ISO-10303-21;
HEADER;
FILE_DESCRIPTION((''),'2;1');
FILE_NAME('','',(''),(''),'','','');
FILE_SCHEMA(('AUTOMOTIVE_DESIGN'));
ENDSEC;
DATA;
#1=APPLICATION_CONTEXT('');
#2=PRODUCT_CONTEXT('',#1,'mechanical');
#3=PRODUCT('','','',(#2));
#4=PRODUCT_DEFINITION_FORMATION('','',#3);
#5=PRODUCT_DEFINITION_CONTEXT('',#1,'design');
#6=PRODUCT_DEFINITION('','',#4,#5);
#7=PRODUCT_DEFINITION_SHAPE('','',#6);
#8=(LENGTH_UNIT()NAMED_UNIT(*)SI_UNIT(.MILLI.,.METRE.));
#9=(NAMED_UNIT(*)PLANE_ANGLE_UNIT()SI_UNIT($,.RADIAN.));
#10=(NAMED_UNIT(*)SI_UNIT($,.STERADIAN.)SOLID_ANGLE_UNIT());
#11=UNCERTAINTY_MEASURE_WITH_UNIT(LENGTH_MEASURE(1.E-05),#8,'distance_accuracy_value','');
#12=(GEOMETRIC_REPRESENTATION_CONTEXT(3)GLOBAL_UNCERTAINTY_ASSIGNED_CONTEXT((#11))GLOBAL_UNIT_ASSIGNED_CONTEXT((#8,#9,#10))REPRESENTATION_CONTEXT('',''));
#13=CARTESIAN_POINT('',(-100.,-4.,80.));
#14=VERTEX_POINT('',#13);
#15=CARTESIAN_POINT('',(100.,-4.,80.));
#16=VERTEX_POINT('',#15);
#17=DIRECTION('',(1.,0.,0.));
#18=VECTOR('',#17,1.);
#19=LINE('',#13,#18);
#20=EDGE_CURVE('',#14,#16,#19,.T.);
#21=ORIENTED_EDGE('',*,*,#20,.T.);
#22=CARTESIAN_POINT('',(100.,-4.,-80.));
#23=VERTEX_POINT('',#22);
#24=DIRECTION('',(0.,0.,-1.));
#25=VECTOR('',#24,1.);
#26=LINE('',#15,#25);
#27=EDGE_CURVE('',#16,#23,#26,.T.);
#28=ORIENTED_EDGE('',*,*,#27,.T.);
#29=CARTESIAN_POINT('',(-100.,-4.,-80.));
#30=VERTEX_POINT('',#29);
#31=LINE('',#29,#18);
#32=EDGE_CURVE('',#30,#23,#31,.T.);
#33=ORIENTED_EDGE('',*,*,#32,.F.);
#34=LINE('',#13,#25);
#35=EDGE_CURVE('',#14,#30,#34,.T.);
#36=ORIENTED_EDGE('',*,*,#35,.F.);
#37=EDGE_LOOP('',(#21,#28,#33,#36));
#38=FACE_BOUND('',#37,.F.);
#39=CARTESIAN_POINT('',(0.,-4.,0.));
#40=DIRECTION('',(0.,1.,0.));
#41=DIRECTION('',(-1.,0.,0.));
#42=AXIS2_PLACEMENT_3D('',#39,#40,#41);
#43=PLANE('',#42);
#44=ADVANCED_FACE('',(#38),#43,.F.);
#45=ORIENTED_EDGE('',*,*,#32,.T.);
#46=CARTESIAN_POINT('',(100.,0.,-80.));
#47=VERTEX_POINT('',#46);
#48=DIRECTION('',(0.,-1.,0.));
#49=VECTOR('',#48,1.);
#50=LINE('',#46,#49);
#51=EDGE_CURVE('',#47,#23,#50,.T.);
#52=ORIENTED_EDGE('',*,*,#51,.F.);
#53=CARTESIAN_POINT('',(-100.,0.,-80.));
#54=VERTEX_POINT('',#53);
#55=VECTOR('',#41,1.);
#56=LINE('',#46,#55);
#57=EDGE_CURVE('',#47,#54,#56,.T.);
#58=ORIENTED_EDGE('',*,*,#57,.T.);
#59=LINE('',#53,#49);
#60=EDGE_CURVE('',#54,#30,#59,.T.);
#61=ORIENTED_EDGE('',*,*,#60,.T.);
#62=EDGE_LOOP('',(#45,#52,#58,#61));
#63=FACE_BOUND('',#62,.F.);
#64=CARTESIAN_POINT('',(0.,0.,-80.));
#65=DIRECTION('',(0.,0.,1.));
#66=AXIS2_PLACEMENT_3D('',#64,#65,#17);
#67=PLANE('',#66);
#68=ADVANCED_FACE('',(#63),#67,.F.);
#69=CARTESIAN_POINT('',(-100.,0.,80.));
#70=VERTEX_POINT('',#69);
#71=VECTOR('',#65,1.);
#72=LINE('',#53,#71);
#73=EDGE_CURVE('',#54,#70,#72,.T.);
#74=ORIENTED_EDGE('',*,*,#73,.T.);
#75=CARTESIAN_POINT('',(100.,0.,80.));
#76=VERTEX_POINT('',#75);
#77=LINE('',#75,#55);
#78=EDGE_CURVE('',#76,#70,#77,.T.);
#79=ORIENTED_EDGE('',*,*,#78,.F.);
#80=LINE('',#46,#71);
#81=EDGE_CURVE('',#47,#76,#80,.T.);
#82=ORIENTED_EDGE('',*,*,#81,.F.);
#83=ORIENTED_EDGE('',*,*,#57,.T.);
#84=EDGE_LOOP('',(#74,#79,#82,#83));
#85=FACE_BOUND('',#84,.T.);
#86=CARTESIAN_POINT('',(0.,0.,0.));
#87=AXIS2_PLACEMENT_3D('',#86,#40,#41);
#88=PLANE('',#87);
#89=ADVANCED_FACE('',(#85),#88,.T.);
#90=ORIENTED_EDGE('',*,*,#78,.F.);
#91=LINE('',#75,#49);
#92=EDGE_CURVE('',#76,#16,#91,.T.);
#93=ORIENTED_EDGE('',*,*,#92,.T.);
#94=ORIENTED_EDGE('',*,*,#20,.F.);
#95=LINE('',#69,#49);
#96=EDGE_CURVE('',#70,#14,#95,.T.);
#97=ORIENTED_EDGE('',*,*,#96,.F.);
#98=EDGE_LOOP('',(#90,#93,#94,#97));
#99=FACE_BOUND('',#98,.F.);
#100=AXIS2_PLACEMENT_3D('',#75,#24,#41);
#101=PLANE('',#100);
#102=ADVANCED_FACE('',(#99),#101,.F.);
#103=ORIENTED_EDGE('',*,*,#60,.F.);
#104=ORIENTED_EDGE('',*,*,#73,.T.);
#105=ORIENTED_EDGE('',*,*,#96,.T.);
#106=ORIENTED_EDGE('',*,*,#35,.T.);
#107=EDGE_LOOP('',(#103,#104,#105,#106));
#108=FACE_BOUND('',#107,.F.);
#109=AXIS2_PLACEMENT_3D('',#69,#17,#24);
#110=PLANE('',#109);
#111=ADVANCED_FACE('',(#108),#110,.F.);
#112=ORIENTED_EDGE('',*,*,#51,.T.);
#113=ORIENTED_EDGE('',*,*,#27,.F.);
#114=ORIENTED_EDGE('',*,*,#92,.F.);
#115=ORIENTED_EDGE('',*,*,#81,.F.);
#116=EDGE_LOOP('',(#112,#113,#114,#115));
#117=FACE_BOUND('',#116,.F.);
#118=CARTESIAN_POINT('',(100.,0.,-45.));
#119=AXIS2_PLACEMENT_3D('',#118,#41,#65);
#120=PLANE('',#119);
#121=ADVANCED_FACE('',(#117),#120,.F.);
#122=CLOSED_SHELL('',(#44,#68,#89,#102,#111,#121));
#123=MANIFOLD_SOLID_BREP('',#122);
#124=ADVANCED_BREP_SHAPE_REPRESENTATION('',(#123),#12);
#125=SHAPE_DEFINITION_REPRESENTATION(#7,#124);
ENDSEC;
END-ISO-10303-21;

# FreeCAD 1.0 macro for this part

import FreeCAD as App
import Part
import Sketcher

V = App.Vector
Q = App.Units.Quantity


def add_polygon(sketch, points):
    """Adds a closed chain of lines whose ends are joined by coincident constraints."""
    first, n = sketch.GeometryCount, len(points)
    for a, b in zip(points, points[1:] + points[:1]):
        sketch.addGeometry(Part.LineSegment(App.Vector(*a, 0), App.Vector(*b, 0)), False)
    for i in range(n):
        sketch.addConstraint(Sketcher.Constraint("Coincident", first + i, 2, first + (i + 1) % n, 1))

doc = App.newDocument("Part")
body = doc.addObject("PartDesign::Body", "Body")

# Sketch on XZ plane
sketch1 = body.newObject("Sketcher::SketchObject", "Sketch")
sketch1.AttachmentSupport = (doc.getObject("XZ_Plane"), [""])
sketch1.MapMode = "FlatFace"
add_polygon(sketch1, [(100, 80), (100, -80), (-100, -80), (-100, 80)])  # lines 0-3
sketch1.addConstraint(Sketcher.Constraint("Vertical", 0))
sketch1.addConstraint(Sketcher.Constraint("Horizontal", 1))
sketch1.addConstraint(Sketcher.Constraint("Vertical", 2))
sketch1.addConstraint(Sketcher.Constraint("Horizontal", 3))
sketch1.addConstraint(Sketcher.Constraint("Symmetric", 0, 2, 2, 2, -1, 1))
sketch1.addConstraint(Sketcher.Constraint("DistanceX", 1, 2, 1, 1, Q("200 mm")))
sketch1.addConstraint(Sketcher.Constraint("DistanceY", 0, 2, 0, 1, Q("160 mm")))
pad1 = body.newObject("PartDesign::Pad", "Pad")
pad1.Profile = sketch1
pad1.Length = 4

doc.recompute()
